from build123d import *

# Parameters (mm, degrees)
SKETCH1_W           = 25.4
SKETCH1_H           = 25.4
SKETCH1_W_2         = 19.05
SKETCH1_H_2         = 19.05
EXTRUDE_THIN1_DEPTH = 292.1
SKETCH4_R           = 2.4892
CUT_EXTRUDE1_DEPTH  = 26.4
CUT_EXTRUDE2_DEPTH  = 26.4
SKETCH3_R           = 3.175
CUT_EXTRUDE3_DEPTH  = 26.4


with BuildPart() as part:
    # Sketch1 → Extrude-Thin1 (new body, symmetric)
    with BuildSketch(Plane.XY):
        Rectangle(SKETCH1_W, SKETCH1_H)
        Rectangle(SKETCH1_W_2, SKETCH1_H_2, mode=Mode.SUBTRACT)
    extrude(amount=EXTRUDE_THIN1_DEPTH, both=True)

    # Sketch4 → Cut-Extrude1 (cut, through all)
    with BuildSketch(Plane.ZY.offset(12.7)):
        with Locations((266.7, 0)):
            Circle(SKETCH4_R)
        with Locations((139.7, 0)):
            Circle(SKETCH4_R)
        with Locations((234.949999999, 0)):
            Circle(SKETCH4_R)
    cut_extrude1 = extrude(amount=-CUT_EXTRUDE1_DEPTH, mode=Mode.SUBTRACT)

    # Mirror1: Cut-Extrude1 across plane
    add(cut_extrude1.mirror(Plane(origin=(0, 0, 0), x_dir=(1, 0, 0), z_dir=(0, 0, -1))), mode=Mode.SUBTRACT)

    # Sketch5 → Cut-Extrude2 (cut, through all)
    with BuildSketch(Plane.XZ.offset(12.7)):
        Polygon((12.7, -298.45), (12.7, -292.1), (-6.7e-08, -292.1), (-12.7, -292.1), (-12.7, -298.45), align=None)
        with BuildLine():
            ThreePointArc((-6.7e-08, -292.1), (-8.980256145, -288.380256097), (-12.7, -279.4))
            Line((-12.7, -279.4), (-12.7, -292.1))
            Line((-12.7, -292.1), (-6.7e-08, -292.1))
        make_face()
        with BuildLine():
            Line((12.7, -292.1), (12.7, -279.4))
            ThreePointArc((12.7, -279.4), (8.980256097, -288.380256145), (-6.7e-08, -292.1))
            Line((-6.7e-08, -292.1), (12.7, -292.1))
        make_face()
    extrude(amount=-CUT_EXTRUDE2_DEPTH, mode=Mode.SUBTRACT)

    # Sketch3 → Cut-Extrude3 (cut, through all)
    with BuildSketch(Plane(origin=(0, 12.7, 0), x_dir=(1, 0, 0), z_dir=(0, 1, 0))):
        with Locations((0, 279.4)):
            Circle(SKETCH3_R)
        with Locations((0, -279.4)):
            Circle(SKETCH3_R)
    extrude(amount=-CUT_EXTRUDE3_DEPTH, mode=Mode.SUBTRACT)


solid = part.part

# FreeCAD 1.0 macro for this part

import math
import FreeCAD as App
import Part
import Sketcher

V = App.Vector
Q = App.Units.Quantity

doc = App.newDocument("Part")
body = doc.addObject("PartDesign::Body", "Body")

sketch1 = body.newObject("Sketcher::SketchObject", "Sketch")
sketch1.AttachmentSupport = (doc.getObject("XY_Plane"), [""])
sketch1.MapMode = "FlatFace"
sketch1.addGeometry([
    Part.LineSegment(V(-13, 13, 0), V(-13, -13, 0)),
    Part.LineSegment(V(-13, -13, 0), V(13, -13, 0)),
    Part.LineSegment(V(13, -13, 0), V(13, 13, 0)),
    Part.LineSegment(V(13, 13, 0), V(-13, 13, 0)),
    Part.LineSegment(V(10, -10, 0), V(-10, -10, 0)),
    Part.LineSegment(V(-10, -10, 0), V(-10, 10, 0)),
    Part.LineSegment(V(-10, 10, 0), V(10, 10, 0)),
    Part.LineSegment(V(10, 10, 0), V(10, -10, 0)),
], False)
sketch1.addConstraint([
    Sketcher.Constraint("Coincident", 0, 2, 1, 1),
    Sketcher.Constraint("Coincident", 1, 2, 2, 1),
    Sketcher.Constraint("Coincident", 2, 2, 3, 1),
    Sketcher.Constraint("Coincident", 3, 2, 0, 1),
    Sketcher.Constraint("Coincident", 4, 2, 5, 1),
    Sketcher.Constraint("Coincident", 5, 2, 6, 1),
    Sketcher.Constraint("Coincident", 6, 2, 7, 1),
    Sketcher.Constraint("Coincident", 7, 2, 4, 1),
    Sketcher.Constraint("Vertical", 0),
    Sketcher.Constraint("Horizontal", 1),
    Sketcher.Constraint("Vertical", 2),
    Sketcher.Constraint("Horizontal", 3),
    Sketcher.Constraint("Horizontal", 4),
    Sketcher.Constraint("Vertical", 5),
    Sketcher.Constraint("Horizontal", 6),
    Sketcher.Constraint("Vertical", 7),
    Sketcher.Constraint("Symmetric", 0, 2, 2, 2, -1, 1),
    Sketcher.Constraint("Symmetric", 4, 2, 6, 2, -1, 1),
    Sketcher.Constraint("Equal", 3, 0),
    Sketcher.Constraint("Equal", 6, 5),
    Sketcher.Constraint("DistanceX", 1, 1, 1, 2, Q("1 in")),
    Sketcher.Constraint("DistanceX", 4, 2, 4, 1, Q("0.75 in")),
])
pad1 = body.newObject("PartDesign::Pad", "Pad")
pad1.Profile = sketch1
pad1.Length = Q("23 in")
pad1.Midplane = True

sketch2 = body.newObject("Sketcher::SketchObject", "Sketch001")
sketch2.AttachmentSupport = (doc.getObject("YZ_Plane"), [""])
sketch2.MapMode = "FlatFace"
sketch2.AttachmentOffset = App.Placement(V(0, 0, -0.5 * 25.4), App.Rotation())
sketch2.addGeometry([
    Part.Circle(V(0, 266.7, 0), V(0, 0, 1), 2.5),
    Part.Circle(V(0, 139.7, 0), V(0, 0, 1), 2.5),
    Part.Circle(V(0, 234.9, 0), V(0, 0, 1), 2.5),
], False)
sketch2.addConstraint([
    Sketcher.Constraint("Equal", 0, 1),
    Sketcher.Constraint("Equal", 1, 2),
    Sketcher.Constraint("PointOnObject", 0, 3, -2),
    Sketcher.Constraint("PointOnObject", 1, 3, -2),
    Sketcher.Constraint("PointOnObject", 2, 3, -2),
    Sketcher.Constraint("Diameter", 0, Q("0.196 in")),
    Sketcher.Constraint("DistanceY", 1, 3, 0, 3, Q("5 in")),
    Sketcher.Constraint("DistanceY", -1, 1, 0, 3, Q("10.5 in")),
    Sketcher.Constraint("DistanceY", -1, 1, 2, 3, Q("9.25 in")),
])
pocket1 = body.newObject("PartDesign::Pocket", "Pocket")
pocket1.Profile = sketch2
pocket1.Type = "ThroughAll"
pocket1.Reversed = True
doc.recompute()

mirrored = body.newObject("PartDesign::Mirrored", "Mirrored")
mirrored.Originals = [pocket1]
mirrored.MirrorPlane = (doc.getObject("XY_Plane"), [""])
body.Tip = mirrored

sketch3 = body.newObject("Sketcher::SketchObject", "Sketch002")
sketch3.AttachmentSupport = (doc.getObject("XZ_Plane"), [""])
sketch3.MapMode = "FlatFace"
sketch3.AttachmentOffset = App.Placement(V(0, 0, 0.5 * 25.4), App.Rotation())
sketch3.addGeometry([
    Part.LineSegment(V(13, -298, 0), V(13, -279, 0)),
    Part.ArcOfCircle(Part.Circle(V(0, -279, 0), V(0, 0, 1), 13), math.radians(-90), math.radians(0)),
    Part.ArcOfCircle(Part.Circle(V(0, -279, 0), V(0, 0, 1), 13), math.radians(180), math.radians(270)),
    Part.LineSegment(V(-13, -279, 0), V(-13, -298, 0)),
    Part.LineSegment(V(-13, -298, 0), V(13, -298, 0)),
], False)
sketch3.addConstraint([
    Sketcher.Constraint("Tangent", 0, 2, 1, 2),
    Sketcher.Constraint("Tangent", 1, 1, 2, 2),
    Sketcher.Constraint("Tangent", 2, 1, 3, 1),
    Sketcher.Constraint("Coincident", 3, 2, 4, 1),
    Sketcher.Constraint("Coincident", 4, 2, 0, 1),
    Sketcher.Constraint("Vertical", 0),
    Sketcher.Constraint("Vertical", 3),
    Sketcher.Constraint("Horizontal", 4),
    Sketcher.Constraint("Equal", 1, 2),
    Sketcher.Constraint("PointOnObject", 1, 3, -2),
    Sketcher.Constraint("PointOnObject", 1, 1, -2),
    Sketcher.Constraint("Radius", 1, Q("0.5 in")),
    Sketcher.Constraint("DistanceY", 1, 3, -1, 1, Q("11 in")),
    Sketcher.Constraint("DistanceY", 0, 1, 0, 2, Q("0.75 in")),
])
pocket2 = body.newObject("PartDesign::Pocket", "Pocket001")
pocket2.Profile = sketch3
pocket2.Type = "ThroughAll"

sketch4 = body.newObject("Sketcher::SketchObject", "Sketch003")
sketch4.AttachmentSupport = (doc.getObject("XZ_Plane"), [""])
sketch4.MapMode = "FlatFace"
sketch4.AttachmentOffset = App.Placement(V(0, 0, -0.5 * 25.4), App.Rotation())
sketch4.addGeometry([
    Part.Circle(V(0, -279.4, 0), V(0, 0, 1), 3.2),
    Part.Circle(V(0, 279.4, 0), V(0, 0, 1), 3.2),
], False)
sketch4.addConstraint([
    Sketcher.Constraint("Equal", 0, 1),
    Sketcher.Constraint("Symmetric", 0, 3, 1, 3, -1, 1),
    Sketcher.Constraint("PointOnObject", 0, 3, -2),
    Sketcher.Constraint("Diameter", 0, Q("0.25 in")),
    Sketcher.Constraint("DistanceY", 0, 3, -1, 1, Q("11 in")),
])
pocket3 = body.newObject("PartDesign::Pocket", "Pocket002")
pocket3.Profile = sketch4
pocket3.Type = "ThroughAll"
pocket3.Reversed = True

doc.recompute()
